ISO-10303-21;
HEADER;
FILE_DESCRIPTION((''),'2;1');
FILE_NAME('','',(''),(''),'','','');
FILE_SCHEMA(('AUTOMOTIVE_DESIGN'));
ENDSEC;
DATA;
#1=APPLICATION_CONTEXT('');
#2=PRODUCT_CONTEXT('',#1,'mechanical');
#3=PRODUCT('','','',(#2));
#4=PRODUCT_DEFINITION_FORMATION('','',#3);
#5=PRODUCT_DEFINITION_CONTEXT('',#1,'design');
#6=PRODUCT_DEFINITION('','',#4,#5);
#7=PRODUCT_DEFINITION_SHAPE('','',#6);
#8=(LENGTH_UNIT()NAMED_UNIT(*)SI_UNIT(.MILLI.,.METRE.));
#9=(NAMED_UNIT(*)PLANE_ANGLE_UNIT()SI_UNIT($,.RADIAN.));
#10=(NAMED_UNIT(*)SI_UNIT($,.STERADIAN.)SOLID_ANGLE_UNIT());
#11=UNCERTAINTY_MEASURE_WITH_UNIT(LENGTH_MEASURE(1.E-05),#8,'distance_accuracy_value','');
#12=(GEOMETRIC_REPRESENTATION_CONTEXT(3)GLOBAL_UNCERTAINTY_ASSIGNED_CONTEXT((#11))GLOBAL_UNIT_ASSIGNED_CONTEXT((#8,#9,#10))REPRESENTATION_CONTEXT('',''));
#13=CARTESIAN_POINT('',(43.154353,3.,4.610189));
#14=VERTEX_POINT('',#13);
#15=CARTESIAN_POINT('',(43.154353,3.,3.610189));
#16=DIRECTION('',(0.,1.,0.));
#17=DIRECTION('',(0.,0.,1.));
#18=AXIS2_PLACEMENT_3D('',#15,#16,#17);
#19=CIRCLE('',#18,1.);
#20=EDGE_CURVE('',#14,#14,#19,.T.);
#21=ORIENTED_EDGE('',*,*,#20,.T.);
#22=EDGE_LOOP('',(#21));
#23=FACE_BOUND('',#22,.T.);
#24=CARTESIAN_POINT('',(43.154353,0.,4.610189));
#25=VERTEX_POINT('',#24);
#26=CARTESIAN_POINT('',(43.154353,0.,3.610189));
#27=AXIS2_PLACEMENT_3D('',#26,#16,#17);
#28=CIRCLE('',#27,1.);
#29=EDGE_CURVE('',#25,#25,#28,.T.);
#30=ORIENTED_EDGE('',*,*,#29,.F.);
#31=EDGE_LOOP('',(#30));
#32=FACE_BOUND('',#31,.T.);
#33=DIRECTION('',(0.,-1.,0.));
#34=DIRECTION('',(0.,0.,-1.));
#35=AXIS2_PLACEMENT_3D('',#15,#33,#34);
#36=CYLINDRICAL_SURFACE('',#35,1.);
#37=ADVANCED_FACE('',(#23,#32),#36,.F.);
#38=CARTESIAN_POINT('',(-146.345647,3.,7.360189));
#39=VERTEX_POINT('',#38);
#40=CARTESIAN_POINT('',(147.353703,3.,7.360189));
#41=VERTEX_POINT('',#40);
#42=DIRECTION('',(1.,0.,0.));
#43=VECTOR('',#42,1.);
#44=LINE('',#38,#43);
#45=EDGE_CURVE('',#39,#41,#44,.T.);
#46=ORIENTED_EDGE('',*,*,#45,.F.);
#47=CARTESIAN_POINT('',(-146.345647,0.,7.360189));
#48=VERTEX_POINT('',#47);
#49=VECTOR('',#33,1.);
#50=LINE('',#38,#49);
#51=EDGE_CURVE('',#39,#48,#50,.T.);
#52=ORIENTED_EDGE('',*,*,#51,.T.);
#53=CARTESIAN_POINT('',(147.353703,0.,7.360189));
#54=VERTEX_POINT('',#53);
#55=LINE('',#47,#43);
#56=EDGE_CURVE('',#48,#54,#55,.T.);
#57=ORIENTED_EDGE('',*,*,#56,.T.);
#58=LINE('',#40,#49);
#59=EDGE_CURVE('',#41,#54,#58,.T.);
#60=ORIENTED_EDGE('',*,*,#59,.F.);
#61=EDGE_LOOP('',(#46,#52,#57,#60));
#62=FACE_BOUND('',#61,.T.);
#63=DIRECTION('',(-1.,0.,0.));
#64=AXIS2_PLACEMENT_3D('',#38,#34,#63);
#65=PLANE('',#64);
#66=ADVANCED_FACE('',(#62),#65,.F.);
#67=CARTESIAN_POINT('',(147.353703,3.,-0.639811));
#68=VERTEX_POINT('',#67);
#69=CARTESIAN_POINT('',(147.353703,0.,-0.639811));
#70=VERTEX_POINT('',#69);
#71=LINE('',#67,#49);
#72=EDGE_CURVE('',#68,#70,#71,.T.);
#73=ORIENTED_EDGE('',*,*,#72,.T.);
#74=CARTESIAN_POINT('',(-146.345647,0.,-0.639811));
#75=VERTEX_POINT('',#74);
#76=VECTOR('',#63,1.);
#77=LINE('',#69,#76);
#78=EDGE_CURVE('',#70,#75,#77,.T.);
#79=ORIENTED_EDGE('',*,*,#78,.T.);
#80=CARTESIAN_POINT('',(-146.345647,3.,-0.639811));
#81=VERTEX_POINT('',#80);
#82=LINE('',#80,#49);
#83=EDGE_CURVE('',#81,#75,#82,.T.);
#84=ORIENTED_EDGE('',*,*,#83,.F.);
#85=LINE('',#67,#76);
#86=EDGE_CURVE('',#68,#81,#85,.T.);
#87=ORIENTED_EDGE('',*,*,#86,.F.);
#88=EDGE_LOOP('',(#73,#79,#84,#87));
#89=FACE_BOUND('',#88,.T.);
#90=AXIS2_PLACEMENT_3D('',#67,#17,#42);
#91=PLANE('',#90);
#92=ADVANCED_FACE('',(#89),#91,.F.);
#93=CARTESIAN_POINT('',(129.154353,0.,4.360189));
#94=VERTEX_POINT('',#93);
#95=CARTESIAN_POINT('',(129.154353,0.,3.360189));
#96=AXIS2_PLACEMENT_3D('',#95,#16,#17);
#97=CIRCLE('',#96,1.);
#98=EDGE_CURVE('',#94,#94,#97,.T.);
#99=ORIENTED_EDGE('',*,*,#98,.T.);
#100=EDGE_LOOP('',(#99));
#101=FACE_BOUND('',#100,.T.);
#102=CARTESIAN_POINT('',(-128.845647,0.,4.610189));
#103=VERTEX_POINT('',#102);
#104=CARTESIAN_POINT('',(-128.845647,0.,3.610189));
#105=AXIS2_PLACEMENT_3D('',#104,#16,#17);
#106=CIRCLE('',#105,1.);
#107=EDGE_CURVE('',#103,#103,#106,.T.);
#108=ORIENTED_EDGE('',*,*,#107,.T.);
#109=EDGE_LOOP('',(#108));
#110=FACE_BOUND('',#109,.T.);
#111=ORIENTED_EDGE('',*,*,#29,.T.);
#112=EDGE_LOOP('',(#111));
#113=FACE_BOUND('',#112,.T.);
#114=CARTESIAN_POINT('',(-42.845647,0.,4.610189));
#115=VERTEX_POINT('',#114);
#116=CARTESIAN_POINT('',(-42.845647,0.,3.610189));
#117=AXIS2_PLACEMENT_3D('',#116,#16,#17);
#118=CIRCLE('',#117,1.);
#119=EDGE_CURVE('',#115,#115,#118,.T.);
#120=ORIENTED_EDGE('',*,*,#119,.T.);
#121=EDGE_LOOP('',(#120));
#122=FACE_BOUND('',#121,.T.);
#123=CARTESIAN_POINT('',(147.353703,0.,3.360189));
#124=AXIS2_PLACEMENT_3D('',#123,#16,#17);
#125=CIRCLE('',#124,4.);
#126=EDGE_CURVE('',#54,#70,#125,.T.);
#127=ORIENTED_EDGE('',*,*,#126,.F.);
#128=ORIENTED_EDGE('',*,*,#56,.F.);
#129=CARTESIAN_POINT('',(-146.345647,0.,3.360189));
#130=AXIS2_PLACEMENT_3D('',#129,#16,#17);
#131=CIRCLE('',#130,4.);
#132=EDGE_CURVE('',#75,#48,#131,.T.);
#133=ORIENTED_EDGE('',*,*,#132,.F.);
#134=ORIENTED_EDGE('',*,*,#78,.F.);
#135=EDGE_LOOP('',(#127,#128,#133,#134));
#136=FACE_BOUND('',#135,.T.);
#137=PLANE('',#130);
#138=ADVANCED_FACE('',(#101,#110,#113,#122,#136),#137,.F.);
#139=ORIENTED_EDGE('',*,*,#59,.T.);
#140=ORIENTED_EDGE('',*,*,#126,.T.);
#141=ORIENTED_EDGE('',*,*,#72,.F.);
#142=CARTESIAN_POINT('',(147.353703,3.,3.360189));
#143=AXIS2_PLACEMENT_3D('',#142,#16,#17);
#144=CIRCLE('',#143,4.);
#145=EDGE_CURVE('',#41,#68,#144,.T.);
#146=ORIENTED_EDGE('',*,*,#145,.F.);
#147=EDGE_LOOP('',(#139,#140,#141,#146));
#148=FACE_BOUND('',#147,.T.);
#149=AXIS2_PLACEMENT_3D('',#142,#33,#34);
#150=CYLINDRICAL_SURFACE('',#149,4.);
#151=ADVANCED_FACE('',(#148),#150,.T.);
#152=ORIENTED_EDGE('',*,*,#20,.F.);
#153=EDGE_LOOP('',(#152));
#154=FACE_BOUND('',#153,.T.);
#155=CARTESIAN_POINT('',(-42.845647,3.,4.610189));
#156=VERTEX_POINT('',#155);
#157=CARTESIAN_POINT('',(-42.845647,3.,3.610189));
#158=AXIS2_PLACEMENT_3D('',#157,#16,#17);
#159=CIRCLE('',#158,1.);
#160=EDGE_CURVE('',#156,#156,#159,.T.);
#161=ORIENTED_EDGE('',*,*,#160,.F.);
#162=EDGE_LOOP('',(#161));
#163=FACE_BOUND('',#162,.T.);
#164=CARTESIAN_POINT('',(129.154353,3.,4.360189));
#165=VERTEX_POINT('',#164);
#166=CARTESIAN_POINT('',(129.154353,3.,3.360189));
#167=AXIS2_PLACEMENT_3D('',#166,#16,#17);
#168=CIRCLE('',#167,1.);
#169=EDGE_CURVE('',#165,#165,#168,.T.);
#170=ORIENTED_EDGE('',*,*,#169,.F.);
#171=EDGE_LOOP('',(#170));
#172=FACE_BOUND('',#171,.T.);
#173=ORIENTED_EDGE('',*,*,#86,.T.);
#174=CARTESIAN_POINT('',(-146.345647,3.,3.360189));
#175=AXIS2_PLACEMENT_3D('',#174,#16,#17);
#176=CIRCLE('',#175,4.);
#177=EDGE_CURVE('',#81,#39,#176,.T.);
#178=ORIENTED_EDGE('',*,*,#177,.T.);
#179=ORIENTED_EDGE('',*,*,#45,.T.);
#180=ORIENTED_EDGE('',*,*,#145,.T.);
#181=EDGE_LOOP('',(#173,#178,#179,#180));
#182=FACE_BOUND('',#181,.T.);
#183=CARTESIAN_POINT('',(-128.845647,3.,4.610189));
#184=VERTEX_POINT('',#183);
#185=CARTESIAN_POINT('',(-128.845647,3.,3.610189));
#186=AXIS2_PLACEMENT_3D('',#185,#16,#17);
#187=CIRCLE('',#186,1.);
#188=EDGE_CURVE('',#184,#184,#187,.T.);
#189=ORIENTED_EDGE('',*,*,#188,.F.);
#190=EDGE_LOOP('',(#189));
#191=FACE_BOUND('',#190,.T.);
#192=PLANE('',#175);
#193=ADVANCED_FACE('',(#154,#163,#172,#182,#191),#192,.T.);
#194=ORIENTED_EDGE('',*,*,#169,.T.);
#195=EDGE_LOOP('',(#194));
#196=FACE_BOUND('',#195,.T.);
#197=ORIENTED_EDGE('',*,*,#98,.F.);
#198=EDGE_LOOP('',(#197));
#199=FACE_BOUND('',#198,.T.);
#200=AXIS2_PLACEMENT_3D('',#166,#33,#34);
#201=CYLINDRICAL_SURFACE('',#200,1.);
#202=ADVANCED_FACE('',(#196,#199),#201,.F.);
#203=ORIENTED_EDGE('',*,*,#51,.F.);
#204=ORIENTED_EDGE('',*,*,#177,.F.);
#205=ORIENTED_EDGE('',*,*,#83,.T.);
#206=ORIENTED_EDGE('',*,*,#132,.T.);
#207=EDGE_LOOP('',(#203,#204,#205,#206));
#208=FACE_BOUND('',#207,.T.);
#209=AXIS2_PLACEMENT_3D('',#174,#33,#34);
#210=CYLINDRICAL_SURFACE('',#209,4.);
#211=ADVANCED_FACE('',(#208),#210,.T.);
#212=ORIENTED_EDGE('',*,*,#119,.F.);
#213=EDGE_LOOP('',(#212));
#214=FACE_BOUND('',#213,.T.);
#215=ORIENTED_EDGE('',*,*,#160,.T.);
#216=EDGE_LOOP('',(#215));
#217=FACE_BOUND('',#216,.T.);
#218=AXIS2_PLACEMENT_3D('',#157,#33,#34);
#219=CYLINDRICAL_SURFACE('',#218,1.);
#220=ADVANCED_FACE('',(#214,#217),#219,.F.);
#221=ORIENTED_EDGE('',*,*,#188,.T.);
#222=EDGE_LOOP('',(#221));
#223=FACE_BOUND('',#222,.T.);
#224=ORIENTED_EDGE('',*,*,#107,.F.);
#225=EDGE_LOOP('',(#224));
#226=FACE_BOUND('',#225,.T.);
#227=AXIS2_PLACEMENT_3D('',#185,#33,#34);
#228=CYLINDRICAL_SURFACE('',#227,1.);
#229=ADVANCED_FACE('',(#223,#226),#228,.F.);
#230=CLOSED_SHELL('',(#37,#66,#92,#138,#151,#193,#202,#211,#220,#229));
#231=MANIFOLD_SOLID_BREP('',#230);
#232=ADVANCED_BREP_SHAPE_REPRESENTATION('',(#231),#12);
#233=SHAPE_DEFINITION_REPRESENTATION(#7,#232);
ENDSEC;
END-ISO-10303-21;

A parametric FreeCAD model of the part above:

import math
import FreeCAD as App
import Part
import Sketcher
from FreeCAD import Vector

doc = App.newDocument("Part")
body = doc.addObject("PartDesign::Body", "Body")

# Sketch on XZ plane
sketch1 = body.newObject("Sketcher::SketchObject", "Sketch")
sketch1.AttachmentSupport = (doc.getObject("XZ_Plane"), [""])
sketch1.MapMode = "FlatFace"
sketch1.addGeometry([
    Part.LineSegment(Vector(-146.3, 7.4, 0), Vector(147.4, 7.4, 0)),  # 0
    Part.ArcOfCircle(Part.Circle(Vector(147.4, 3.4, 0), Vector(0, 0, 1), 4), math.radians(0), math.radians(90)),  # 1
    Part.ArcOfCircle(Part.Circle(Vector(147.4, 3.4, 0), Vector(0, 0, 1), 4), math.radians(-90), math.radians(0)),  # 2
    Part.LineSegment(Vector(147.4, -0.6, 0), Vector(-146.3, -0.6, 0)),  # 3
    Part.ArcOfCircle(Part.Circle(Vector(-146.3, 3.4, 0), Vector(0, 0, 1), 4), math.radians(-180), math.radians(-90)),  # 4
    Part.ArcOfCircle(Part.Circle(Vector(-146.3, 3.4, 0), Vector(0, 0, 1), 4), math.radians(90), math.radians(180)),  # 5
    Part.Circle(Vector(-128.8, 3.6, 0), Vector(0, 0, 1), 1),  # 6
    Part.Circle(Vector(-42.8, 3.6, 0), Vector(0, 0, 1), 1),  # 7
    Part.Circle(Vector(43.2, 3.6, 0), Vector(0, 0, 1), 1),  # 8
    Part.Circle(Vector(129.2, 3.4, 0), Vector(0, 0, 1), 1),  # 9
], False)
sketch1.addConstraint([
    Sketcher.Constraint("Tangent", 0, 2, 1, 2),
    Sketcher.Constraint("Tangent", 1, 1, 2, 2),
    Sketcher.Constraint("Tangent", 2, 1, 3, 1),
    Sketcher.Constraint("Tangent", 3, 2, 4, 2),
    Sketcher.Constraint("Tangent", 4, 1, 5, 2),
    Sketcher.Constraint("Tangent", 5, 1, 0, 1),
    Sketcher.Constraint("Horizontal", 0),
    Sketcher.Constraint("Horizontal", 3),
    Sketcher.Constraint("Equal", 1, 2),
    Sketcher.Constraint("Equal", 2, 4),
    Sketcher.Constraint("Equal", 6, 7),
    Sketcher.Constraint("Equal", 7, 8),
    Sketcher.Constraint("Equal", 8, 9),
    Sketcher.Constraint("Horizontal", 6, 3, 7, 3),
    Sketcher.Constraint("Horizontal", 7, 3, 8, 3),
    Sketcher.Constraint("Horizontal", 5, 3, 9, 3),
    Sketcher.Constraint("Horizontal", 9, 3, 1, 1),
    Sketcher.Constraint("Horizontal", 1, 1, 4, 1),
    Sketcher.Constraint("Diameter", 6, 2.0),
    Sketcher.Constraint("Radius", 1, 4.0),
    Sketcher.Constraint("DistanceX", 6, 3, 7, 3, 86.0),
    Sketcher.Constraint("DistanceX", 7, 3, 8, 3, 86.0),
    Sketcher.Constraint("DistanceX", 8, 3, 9, 3, 86.0),
    Sketcher.Constraint("DistanceX", 4, 3, 6, 3, 17.5),
    Sketcher.Constraint("DistanceY", 4, 3, 6, 3, 0.25),
    Sketcher.Constraint("DistanceX", 0, 1, 0, 2, 293.69935),
    Sketcher.Constraint("DistanceY", -1, 1, 1, 3, 3.360189),
    Sketcher.Constraint("DistanceX", -1, 1, 1, 3, 147.353703),
])
pad1 = body.newObject("PartDesign::Pad", "Pad")
pad1.Profile = sketch1
pad1.Length = 3
pad1.Reversed = True

doc.recompute()
